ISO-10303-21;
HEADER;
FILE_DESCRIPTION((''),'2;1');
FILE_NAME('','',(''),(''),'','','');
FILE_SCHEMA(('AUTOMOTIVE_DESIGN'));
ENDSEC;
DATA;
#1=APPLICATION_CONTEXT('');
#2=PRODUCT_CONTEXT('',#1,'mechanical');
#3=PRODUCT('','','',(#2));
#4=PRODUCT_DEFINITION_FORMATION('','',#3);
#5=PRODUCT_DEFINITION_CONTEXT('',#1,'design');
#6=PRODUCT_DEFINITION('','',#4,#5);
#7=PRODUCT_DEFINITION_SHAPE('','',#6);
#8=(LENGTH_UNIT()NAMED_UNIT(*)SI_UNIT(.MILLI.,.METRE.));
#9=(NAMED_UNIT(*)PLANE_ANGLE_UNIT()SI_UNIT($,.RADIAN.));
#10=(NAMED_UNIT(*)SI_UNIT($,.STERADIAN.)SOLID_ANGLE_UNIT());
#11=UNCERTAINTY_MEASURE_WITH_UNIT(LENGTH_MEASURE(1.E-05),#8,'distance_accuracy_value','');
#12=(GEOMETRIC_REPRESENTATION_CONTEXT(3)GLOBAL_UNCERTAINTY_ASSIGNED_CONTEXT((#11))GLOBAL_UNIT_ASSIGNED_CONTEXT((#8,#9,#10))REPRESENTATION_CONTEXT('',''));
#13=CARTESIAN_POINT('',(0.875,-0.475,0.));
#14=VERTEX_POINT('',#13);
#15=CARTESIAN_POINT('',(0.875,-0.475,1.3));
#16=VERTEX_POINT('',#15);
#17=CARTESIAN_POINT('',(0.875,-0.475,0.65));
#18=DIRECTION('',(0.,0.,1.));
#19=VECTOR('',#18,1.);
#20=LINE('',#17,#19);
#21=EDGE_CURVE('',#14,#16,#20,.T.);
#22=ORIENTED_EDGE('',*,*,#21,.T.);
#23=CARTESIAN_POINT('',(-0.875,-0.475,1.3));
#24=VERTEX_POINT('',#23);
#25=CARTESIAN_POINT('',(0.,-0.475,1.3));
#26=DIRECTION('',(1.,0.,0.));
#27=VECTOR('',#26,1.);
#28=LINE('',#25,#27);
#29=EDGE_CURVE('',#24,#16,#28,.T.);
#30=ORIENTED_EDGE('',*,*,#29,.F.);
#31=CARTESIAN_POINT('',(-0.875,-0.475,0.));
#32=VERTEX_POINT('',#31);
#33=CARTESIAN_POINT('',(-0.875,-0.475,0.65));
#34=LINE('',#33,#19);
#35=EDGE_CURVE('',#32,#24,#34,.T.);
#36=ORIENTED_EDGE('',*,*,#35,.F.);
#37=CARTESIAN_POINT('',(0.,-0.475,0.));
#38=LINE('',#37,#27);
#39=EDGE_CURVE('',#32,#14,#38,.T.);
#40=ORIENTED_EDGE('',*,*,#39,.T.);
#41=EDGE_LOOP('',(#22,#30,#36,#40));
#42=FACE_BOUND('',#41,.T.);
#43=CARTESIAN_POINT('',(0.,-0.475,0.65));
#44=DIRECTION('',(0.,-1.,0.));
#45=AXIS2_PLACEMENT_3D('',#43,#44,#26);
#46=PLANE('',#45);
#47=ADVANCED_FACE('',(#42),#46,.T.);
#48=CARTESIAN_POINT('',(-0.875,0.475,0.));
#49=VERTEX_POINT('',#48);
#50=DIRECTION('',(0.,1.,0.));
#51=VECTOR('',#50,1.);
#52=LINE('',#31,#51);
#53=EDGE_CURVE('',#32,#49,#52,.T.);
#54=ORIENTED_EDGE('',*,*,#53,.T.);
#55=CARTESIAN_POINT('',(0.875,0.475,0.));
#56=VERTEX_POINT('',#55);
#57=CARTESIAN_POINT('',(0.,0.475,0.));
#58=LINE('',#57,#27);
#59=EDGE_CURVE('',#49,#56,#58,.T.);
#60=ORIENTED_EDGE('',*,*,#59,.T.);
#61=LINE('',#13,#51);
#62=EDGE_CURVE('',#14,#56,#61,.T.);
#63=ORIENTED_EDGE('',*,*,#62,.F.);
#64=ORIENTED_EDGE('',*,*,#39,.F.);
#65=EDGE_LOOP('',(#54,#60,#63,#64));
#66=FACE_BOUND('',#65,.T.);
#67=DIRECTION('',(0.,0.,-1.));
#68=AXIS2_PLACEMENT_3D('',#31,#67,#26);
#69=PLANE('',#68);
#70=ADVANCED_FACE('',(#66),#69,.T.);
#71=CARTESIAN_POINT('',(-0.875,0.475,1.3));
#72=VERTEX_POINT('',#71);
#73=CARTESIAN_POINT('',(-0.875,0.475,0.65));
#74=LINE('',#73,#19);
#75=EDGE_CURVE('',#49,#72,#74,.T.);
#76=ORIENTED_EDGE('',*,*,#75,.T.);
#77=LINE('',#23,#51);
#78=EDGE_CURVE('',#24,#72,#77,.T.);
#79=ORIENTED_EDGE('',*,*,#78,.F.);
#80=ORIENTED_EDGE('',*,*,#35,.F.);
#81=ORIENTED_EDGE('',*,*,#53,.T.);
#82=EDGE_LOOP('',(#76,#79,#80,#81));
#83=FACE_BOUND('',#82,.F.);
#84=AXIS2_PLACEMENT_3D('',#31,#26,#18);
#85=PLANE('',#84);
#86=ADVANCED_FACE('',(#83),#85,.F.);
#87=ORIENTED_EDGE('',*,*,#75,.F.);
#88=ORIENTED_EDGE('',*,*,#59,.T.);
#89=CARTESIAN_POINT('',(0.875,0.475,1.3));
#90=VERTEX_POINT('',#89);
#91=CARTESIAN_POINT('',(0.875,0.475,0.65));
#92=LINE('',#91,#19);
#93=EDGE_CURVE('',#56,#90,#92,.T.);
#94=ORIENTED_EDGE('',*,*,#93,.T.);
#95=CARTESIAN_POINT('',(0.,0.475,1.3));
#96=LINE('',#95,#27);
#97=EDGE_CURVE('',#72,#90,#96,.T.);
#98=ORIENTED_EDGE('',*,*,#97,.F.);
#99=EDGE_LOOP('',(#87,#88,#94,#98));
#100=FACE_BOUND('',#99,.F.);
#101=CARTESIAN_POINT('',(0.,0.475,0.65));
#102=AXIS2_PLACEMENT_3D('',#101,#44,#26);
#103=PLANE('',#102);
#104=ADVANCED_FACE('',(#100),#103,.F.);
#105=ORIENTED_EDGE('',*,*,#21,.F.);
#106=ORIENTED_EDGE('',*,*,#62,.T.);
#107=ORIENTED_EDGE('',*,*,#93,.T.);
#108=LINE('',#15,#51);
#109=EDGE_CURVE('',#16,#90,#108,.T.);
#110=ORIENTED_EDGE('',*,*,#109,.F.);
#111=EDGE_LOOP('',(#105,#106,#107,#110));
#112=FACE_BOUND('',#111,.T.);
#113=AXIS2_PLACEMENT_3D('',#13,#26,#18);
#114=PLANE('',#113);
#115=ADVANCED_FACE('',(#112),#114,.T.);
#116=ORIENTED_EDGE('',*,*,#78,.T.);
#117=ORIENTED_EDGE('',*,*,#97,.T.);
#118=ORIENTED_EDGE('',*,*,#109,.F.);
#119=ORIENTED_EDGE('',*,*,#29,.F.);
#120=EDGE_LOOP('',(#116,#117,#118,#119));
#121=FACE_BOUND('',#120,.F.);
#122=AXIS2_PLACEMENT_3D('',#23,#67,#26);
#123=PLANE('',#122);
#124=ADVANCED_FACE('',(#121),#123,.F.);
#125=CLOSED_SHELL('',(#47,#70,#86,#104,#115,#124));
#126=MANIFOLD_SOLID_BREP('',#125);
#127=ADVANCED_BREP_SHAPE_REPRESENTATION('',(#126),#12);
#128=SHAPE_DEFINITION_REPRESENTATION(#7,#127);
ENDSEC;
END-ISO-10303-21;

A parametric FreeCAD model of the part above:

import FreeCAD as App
import Part
import Sketcher

V = App.Vector
Q = App.Units.Quantity


def add_polygon(sketch, points):
    """Adds a closed chain of lines whose ends are joined by coincident constraints."""
    first, n = sketch.GeometryCount, len(points)
    for a, b in zip(points, points[1:] + points[:1]):
        sketch.addGeometry(Part.LineSegment(App.Vector(*a, 0), App.Vector(*b, 0)), False)
    for i in range(n):
        sketch.addConstraint(Sketcher.Constraint("Coincident", first + i, 2, first + (i + 1) % n, 1))

doc = App.newDocument("Part")
body = doc.addObject("PartDesign::Body", "Body")

sketch1 = doc.addObject("Sketcher::SketchObject", "Sketch")
body.addObject(sketch1)
sketch1.AttachmentSupport = (doc.XZ_Plane, [""])
sketch1.MapMode = "FlatFace"
sketch1.AttachmentOffset = App.Placement(V(0, 0, 0.475), App.Rotation())
add_polygon(sketch1, [(-0.9, 1.3), (-0.9, 0), (0.9, 0), (0.9, 1.3)])
sketch1.addConstraint([
    Sketcher.Constraint("Vertical", 0),
    Sketcher.Constraint("Horizontal", 1),
    Sketcher.Constraint("Vertical", 2),
    Sketcher.Constraint("Horizontal", 3),
    Sketcher.Constraint("Symmetric", 0, 2, 1, 2, -1, 1),
    Sketcher.Constraint("DistanceY", 0, 2, 0, 1, Q("1.3 mm")),
    Sketcher.Constraint("DistanceX", 1, 1, 1, 2, Q("1.749999 mm")),
])
pad1 = doc.addObject("PartDesign::Pad", "Pad")
body.addObject(pad1)
pad1.Profile = sketch1
pad1.Length = 0.950001
pad1.Reversed = True

doc.recompute()
